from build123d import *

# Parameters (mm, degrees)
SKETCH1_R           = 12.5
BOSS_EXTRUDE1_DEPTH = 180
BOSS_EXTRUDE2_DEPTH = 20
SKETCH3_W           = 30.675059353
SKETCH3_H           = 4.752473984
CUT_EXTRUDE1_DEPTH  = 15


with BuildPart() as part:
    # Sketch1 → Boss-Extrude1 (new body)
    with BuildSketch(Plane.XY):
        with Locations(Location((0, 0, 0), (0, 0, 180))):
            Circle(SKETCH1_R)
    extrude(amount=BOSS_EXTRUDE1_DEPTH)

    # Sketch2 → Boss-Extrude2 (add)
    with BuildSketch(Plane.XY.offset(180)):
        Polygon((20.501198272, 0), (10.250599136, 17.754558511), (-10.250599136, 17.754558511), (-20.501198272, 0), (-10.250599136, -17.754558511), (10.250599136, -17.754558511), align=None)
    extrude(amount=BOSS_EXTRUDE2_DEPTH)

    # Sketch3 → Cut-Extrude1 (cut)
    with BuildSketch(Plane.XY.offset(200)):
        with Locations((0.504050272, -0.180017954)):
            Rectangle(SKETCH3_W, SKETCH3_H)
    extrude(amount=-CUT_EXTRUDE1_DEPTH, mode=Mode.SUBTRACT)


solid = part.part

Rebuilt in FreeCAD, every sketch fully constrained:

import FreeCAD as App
import Part
import Sketcher
from FreeCAD import Vector
Q = App.Units.Quantity


def add_polygon(sketch, points):
    """Adds a closed chain of lines whose ends are joined by coincident constraints."""
    first, n = sketch.GeometryCount, len(points)
    for a, b in zip(points, points[1:] + points[:1]):
        sketch.addGeometry(Part.LineSegment(App.Vector(*a, 0), App.Vector(*b, 0)), False)
    for i in range(n):
        sketch.addConstraint(Sketcher.Constraint("Coincident", first + i, 2, first + (i + 1) % n, 1))

doc = App.newDocument("Part")
params = doc.addObject("Spreadsheet::Sheet", "Params")
for row, (alias, value) in enumerate([
    ("sketch1_diameter", "25 mm"),
    ("pad1_length", "180 mm"),
    ("pad2_length", "20 mm"),
    ("pocket1_length", "15 mm"),
], start=1):
    params.set(f"A{row}", alias)
    params.set(f"B{row}", "=" + value)
    params.setAlias(f"B{row}", alias)

body = doc.addObject("PartDesign::Body", "Body")

# Sketch on XY plane
sketch1 = body.newObject("Sketcher::SketchObject", "Sketch")
sketch1.AttachmentSupport = (doc.getObject("XY_Plane"), [""])
sketch1.MapMode = "FlatFace"
sketch1.addGeometry(Part.Circle(Vector(0, 0, 0), Vector(0, 0, 1), 12.5), False)
sketch1.addConstraint(Sketcher.Constraint("Coincident", 0, 3, -1, 1))
sketch1.addConstraint(Sketcher.Constraint("Diameter", 0, 25.0))
sketch1.setExpression("Constraints[1]", "Params.sketch1_diameter")
pad1 = body.newObject("PartDesign::Pad", "Pad")
pad1.Profile = sketch1
pad1.setExpression("Length", "Params.pad1_length")

# Sketch on XY plane
sketch2 = body.newObject("Sketcher::SketchObject", "Sketch001")
sketch2.AttachmentSupport = (doc.getObject("XY_Plane"), [""])
sketch2.MapMode = "FlatFace"
sketch2.AttachmentOffset = App.Placement(Vector(0, 0, 180), App.Rotation())
add_polygon(sketch2, [(20.501198, 0), (10.250599, 17.754559), (-10.250599, 17.754559), (-20.501198, 0), (-10.250599, -17.754559), (10.250599, -17.754559)])  # lines 0-5
sketch2.addConstraint(Sketcher.Constraint("Horizontal", 1))
sketch2.addConstraint(Sketcher.Constraint("Horizontal", 4))
sketch2.addConstraint(Sketcher.Constraint("Symmetric", 0, 2, 3, 2, -1, 1))
sketch2.addConstraint(Sketcher.Constraint("Symmetric", 2, 2, 5, 2, -1, 1))
sketch2.addConstraint(Sketcher.Constraint("PointOnObject", 2, 2, -1))
sketch2.addConstraint(Sketcher.Constraint("Parallel", 2, 5))
sketch2.addConstraint(Sketcher.Constraint("Vertical", 1, 2, 3, 2))
sketch2.addConstraint(Sketcher.Constraint("Angle", 0, Q("120 deg")))
sketch2.addConstraint(Sketcher.Constraint("DistanceX", 1, 2, 1, 1, 20.501198))
sketch2.addConstraint(Sketcher.Constraint("Distance", 0, 20.501198))
pad2 = body.newObject("PartDesign::Pad", "Pad001")
pad2.Profile = sketch2
pad2.setExpression("Length", "Params.pad2_length")

# Sketch on XY plane
sketch3 = body.newObject("Sketcher::SketchObject", "Sketch002")
sketch3.AttachmentSupport = (doc.getObject("XY_Plane"), [""])
sketch3.MapMode = "FlatFace"
sketch3.AttachmentOffset = App.Placement(Vector(0, 0, 200), App.Rotation())
add_polygon(sketch3, [(-14.833479, 2.196219), (-14.833479, -2.556255), (15.84158, -2.556255), (15.84158, 2.196219)])  # lines 0-3
sketch3.addConstraint(Sketcher.Constraint("Vertical", 0))
sketch3.addConstraint(Sketcher.Constraint("Horizontal", 1))
sketch3.addConstraint(Sketcher.Constraint("Vertical", 2))
sketch3.addConstraint(Sketcher.Constraint("Horizontal", 3))
sketch3.addConstraint(Sketcher.Constraint("DistanceX", 1, 1, 1, 2, 30.675059))
sketch3.addConstraint(Sketcher.Constraint("DistanceY", 0, 2, 0, 1, 4.752474))
sketch3.addConstraint(Sketcher.Constraint("DistanceX", 0, 2, -1, 1, 14.833479))
sketch3.addConstraint(Sketcher.Constraint("DistanceY", -1, 1, 2, 2, 2.196219))
pocket1 = body.newObject("PartDesign::Pocket", "Pocket")
pocket1.Profile = sketch3
pocket1.setExpression("Length", "Params.pocket1_length")

doc.recompute()
